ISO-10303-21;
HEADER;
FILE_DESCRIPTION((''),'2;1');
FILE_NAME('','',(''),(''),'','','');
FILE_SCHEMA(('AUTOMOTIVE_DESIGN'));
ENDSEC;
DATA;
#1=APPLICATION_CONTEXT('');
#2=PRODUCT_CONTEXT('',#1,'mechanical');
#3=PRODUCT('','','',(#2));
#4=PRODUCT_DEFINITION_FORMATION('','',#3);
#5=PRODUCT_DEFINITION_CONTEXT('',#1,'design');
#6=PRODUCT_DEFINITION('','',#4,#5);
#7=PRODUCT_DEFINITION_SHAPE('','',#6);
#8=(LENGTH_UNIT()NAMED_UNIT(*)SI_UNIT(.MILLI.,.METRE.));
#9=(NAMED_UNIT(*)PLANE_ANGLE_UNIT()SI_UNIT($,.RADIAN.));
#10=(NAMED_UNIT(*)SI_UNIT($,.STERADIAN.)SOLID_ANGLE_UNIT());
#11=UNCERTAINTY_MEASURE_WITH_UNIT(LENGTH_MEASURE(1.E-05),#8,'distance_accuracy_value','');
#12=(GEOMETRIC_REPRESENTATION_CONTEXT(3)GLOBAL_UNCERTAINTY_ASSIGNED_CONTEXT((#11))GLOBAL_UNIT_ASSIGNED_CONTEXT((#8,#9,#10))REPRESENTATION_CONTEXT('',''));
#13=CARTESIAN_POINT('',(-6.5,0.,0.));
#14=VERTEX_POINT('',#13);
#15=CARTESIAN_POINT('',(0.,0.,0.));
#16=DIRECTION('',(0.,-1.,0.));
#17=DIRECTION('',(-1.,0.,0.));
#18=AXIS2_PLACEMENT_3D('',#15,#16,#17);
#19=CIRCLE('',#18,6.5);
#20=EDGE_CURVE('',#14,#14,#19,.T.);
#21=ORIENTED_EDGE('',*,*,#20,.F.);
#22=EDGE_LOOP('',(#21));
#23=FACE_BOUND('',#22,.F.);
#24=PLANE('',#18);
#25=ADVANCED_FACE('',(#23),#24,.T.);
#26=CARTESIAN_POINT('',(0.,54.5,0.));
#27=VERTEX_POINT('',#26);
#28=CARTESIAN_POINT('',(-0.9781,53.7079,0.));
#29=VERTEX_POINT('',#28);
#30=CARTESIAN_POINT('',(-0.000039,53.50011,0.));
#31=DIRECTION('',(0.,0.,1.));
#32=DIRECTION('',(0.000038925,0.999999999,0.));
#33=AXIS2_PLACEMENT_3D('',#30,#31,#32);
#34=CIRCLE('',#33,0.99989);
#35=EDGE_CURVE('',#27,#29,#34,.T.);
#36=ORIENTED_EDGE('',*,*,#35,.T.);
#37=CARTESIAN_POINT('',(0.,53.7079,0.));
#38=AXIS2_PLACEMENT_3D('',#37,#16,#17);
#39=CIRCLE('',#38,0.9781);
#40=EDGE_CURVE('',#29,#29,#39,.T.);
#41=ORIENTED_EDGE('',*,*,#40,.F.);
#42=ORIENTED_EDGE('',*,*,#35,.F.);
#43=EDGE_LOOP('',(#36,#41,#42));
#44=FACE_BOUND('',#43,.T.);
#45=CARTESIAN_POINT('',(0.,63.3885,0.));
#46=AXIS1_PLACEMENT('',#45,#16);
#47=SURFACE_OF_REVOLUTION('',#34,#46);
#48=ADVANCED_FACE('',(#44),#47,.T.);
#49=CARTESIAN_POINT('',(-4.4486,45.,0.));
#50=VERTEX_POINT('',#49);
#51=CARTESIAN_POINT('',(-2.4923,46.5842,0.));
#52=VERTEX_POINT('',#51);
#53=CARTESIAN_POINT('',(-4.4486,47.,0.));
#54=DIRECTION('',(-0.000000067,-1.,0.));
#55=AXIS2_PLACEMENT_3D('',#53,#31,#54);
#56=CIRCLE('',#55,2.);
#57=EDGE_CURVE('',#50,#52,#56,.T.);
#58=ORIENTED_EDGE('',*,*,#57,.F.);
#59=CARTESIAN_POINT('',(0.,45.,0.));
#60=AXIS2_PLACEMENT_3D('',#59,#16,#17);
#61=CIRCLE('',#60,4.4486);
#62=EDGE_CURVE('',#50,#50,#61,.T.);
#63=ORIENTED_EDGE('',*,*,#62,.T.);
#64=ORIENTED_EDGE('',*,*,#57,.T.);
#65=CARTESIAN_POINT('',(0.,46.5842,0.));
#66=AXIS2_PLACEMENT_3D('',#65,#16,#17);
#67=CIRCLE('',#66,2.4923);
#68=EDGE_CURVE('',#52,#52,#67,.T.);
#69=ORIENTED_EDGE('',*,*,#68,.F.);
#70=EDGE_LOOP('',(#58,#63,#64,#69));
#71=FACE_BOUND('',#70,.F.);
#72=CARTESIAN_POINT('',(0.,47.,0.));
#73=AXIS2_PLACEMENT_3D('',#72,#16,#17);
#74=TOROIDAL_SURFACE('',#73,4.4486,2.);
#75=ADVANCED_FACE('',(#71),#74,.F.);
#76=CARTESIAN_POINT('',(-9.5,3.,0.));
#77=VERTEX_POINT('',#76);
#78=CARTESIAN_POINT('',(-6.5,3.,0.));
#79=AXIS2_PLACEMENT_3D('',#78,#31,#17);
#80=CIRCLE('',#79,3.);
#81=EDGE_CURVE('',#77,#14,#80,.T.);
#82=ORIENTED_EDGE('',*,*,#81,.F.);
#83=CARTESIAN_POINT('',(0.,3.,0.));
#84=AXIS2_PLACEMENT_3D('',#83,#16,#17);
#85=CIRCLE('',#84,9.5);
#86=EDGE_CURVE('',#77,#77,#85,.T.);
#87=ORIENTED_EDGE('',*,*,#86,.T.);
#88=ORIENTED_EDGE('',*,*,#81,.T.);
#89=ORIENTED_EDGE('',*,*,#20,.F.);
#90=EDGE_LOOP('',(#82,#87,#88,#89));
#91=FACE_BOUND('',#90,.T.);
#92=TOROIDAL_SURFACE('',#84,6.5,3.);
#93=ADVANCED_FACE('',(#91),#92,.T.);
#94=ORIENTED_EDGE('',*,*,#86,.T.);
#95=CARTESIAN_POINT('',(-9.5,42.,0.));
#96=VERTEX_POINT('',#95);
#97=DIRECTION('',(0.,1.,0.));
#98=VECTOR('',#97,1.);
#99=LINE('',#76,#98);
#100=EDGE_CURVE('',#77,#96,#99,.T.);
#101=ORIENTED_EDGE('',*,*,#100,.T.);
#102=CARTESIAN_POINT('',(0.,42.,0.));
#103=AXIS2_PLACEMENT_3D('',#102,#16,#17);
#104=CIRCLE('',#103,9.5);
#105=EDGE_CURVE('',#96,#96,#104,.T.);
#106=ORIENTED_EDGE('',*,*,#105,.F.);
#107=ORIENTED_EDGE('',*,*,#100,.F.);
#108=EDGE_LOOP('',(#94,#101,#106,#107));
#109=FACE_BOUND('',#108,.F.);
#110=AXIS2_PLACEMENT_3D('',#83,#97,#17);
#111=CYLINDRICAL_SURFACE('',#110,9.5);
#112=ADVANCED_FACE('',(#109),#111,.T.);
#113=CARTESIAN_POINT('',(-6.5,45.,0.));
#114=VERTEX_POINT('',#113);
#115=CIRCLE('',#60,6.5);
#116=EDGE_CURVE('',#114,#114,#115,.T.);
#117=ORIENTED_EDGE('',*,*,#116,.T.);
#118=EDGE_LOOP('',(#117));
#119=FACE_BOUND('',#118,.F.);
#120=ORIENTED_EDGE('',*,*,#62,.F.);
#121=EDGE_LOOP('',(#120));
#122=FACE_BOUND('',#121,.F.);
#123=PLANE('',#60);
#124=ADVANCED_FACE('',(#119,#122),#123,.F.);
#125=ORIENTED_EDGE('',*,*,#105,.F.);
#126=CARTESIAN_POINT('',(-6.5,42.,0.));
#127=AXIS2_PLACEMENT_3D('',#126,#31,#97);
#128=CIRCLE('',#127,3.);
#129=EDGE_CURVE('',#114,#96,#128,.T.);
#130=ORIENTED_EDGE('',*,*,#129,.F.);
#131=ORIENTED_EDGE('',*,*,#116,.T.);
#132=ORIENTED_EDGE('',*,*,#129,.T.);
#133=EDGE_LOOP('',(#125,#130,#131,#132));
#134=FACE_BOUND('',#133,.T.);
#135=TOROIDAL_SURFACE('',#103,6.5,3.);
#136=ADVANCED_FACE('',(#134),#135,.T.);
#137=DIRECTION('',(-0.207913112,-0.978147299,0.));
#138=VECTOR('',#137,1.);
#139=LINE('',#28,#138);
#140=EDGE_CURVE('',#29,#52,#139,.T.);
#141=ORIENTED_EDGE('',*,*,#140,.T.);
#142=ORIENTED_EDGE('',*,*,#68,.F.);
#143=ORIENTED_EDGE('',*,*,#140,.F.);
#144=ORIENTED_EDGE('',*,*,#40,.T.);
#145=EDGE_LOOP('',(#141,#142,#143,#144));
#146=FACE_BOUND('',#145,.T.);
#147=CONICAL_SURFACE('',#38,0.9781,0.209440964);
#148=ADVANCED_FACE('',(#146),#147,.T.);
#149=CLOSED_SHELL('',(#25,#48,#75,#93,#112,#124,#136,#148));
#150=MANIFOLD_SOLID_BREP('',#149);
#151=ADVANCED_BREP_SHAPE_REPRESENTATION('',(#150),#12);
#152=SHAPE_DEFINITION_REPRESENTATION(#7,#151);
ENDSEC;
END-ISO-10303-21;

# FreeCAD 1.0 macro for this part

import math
import FreeCAD as App
import Part
import Sketcher
Q = App.Units.Quantity

doc = App.newDocument("Part")
body = doc.addObject("PartDesign::Body", "Body")

# Sketch on XY plane
sketch1 = body.newObject("Sketcher::SketchObject", "Sketch")
sketch1.AttachmentSupport = (doc.getObject("XY_Plane"), [""])
sketch1.MapMode = "FlatFace"
sketch1.addGeometry(Part.LineSegment(App.Vector(-6.5, 0, 0), App.Vector(0, 0, 0)), False)
sketch1.addGeometry(Part.LineSegment(App.Vector(0, 0, 0), App.Vector(0, 54.5, 0)), False)
sketch1.addGeometry(Part.ArcOfCircle(Part.Circle(App.Vector(0, 53.5, 0), App.Vector(0, 0, 1), 1), math.radians(90), math.radians(168)), False)
sketch1.addGeometry(Part.LineSegment(App.Vector(-1, 53.7, 0), App.Vector(-2.5, 46.6, 0)), False)
sketch1.addGeometry(Part.ArcOfCircle(Part.Circle(App.Vector(-4.4, 47, 0), App.Vector(0, 0, 1), 2), math.radians(-90), math.radians(-12)), False)
sketch1.addGeometry(Part.LineSegment(App.Vector(-4.4, 45, 0), App.Vector(-6.5, 45, 0)), False)
sketch1.addGeometry(Part.ArcOfCircle(Part.Circle(App.Vector(-6.5, 42, 0), App.Vector(0, 0, 1), 3), math.radians(90), math.radians(180)), False)
sketch1.addGeometry(Part.LineSegment(App.Vector(-9.5, 42, 0), App.Vector(-9.5, 3, 0)), False)
sketch1.addGeometry(Part.ArcOfCircle(Part.Circle(App.Vector(-6.5, 3, 0), App.Vector(0, 0, 1), 3), math.radians(180), math.radians(270)), False)
sketch1.addConstraint(Sketcher.Constraint("Coincident", 0, 2, 1, 1))
sketch1.addConstraint(Sketcher.Constraint("Coincident", 1, 2, 2, 1))
sketch1.addConstraint(Sketcher.Constraint("Tangent", 2, 2, 3, 1))
sketch1.addConstraint(Sketcher.Constraint("Tangent", 3, 2, 4, 2))
sketch1.addConstraint(Sketcher.Constraint("Tangent", 4, 1, 5, 1))
sketch1.addConstraint(Sketcher.Constraint("Tangent", 5, 2, 6, 1))
sketch1.addConstraint(Sketcher.Constraint("Tangent", 6, 2, 7, 1))
sketch1.addConstraint(Sketcher.Constraint("Tangent", 7, 2, 8, 1))
sketch1.addConstraint(Sketcher.Constraint("Tangent", 8, 2, 0, 1))
sketch1.addConstraint(Sketcher.Constraint("Horizontal", 0))
sketch1.addConstraint(Sketcher.Constraint("Vertical", 1))
sketch1.addConstraint(Sketcher.Constraint("Horizontal", 5))
sketch1.addConstraint(Sketcher.Constraint("Vertical", 7))
sketch1.addConstraint(Sketcher.Constraint("Coincident", 0, 2, -1, 1))
sketch1.addConstraint(Sketcher.Constraint("Equal", 6, 8))
sketch1.addConstraint(Sketcher.Constraint("PointOnObject", 2, 3, -2))
sketch1.addConstraint(Sketcher.Constraint("Radius", 2, Q("1 mm")))
sketch1.addConstraint(Sketcher.Constraint("Radius", 4, Q("2 mm")))
sketch1.addConstraint(Sketcher.Constraint("Radius", 6, Q("3 mm")))
sketch1.addConstraint(Sketcher.Constraint("DistanceY", -1, 1, 4, 1, Q("45 mm")))
sketch1.addConstraint(Sketcher.Constraint("DistanceY", -1, 1, 2, 3, Q("53.5 mm")))
sketch1.addConstraint(Sketcher.Constraint("Angle", 3, Q("-102 deg")))
sketch1.addConstraint(Sketcher.Constraint("DistanceX", 0, 1, 0, 2, Q("6.5 mm")))
revolution = body.newObject("PartDesign::Revolution", "Revolution")
revolution.Profile = sketch1
revolution.ReferenceAxis = (sketch1, ["V_Axis"])
revolution.Angle = 360

doc.recompute()
